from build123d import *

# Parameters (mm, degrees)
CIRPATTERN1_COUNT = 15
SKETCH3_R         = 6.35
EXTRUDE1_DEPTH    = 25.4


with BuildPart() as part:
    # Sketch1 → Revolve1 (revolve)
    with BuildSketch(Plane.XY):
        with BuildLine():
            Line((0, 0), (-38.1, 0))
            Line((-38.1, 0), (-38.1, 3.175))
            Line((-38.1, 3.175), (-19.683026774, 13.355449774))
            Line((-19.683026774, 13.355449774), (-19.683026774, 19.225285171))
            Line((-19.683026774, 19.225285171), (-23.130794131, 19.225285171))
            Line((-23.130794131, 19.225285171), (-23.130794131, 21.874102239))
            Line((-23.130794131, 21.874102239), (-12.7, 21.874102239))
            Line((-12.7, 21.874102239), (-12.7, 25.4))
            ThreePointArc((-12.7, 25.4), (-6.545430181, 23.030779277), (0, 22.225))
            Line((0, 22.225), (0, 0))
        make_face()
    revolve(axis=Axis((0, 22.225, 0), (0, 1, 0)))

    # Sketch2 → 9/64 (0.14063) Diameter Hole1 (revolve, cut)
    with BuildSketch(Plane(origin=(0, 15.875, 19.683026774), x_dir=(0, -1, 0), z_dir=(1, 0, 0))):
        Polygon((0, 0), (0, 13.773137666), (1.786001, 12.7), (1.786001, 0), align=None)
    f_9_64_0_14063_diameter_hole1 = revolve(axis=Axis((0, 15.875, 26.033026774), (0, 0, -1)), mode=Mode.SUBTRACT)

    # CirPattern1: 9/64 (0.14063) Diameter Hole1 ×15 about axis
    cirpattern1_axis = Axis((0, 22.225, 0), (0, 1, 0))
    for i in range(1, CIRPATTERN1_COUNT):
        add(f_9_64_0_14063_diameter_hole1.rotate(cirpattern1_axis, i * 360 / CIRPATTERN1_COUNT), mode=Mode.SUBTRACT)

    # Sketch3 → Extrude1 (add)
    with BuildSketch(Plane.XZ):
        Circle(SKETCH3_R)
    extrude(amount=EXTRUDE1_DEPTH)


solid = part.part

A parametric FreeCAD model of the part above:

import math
import FreeCAD as App
import Part
import Sketcher
from FreeCAD import Vector
Q = App.Units.Quantity


def add_polygon(sketch, points):
    """Adds a closed chain of lines whose ends are joined by coincident constraints."""
    first, n = sketch.GeometryCount, len(points)
    for a, b in zip(points, points[1:] + points[:1]):
        sketch.addGeometry(Part.LineSegment(App.Vector(*a, 0), App.Vector(*b, 0)), False)
    for i in range(n):
        sketch.addConstraint(Sketcher.Constraint("Coincident", first + i, 2, first + (i + 1) % n, 1))

doc = App.newDocument("Part")
body = doc.addObject("PartDesign::Body", "Body")

sketch1 = doc.addObject("Sketcher::SketchObject", "Sketch")
body.addObject(sketch1)
sketch1.AttachmentSupport = (doc.XY_Plane, [""])
sketch1.MapMode = "FlatFace"
sketch1.addGeometry(Part.LineSegment(Vector(-38.1, 0, 0), Vector(0, 0, 0)), False)
sketch1.addGeometry(Part.LineSegment(Vector(0, 0, 0), Vector(0, 22.2, 0)), False)
sketch1.addGeometry(Part.ArcOfCircle(Part.Circle(Vector(0, 49.2, 0), Vector(0, 0, 1), 27), math.radians(-118), math.radians(-90)), False)
sketch1.addGeometry(Part.LineSegment(Vector(-12.7, 25.4, 0), Vector(-12.7, 21.9, 0)), False)
sketch1.addGeometry(Part.LineSegment(Vector(-12.7, 21.9, 0), Vector(-23.1, 21.9, 0)), False)
sketch1.addGeometry(Part.LineSegment(Vector(-23.1, 21.9, 0), Vector(-23.1, 19.2, 0)), False)
sketch1.addGeometry(Part.LineSegment(Vector(-23.1, 19.2, 0), Vector(-19.7, 19.2, 0)), False)
sketch1.addGeometry(Part.LineSegment(Vector(-19.7, 19.2, 0), Vector(-19.7, 13.4, 0)), False)
sketch1.addGeometry(Part.LineSegment(Vector(-19.7, 13.4, 0), Vector(-38.1, 3.2, 0)), False)
sketch1.addGeometry(Part.LineSegment(Vector(-38.1, 3.2, 0), Vector(-38.1, 0, 0)), False)
sketch1.addConstraint(Sketcher.Constraint("Coincident", 0, 2, 1, 1))
sketch1.addConstraint(Sketcher.Constraint("Coincident", 1, 2, 2, 2))
sketch1.addConstraint(Sketcher.Constraint("Coincident", 2, 1, 3, 1))
sketch1.addConstraint(Sketcher.Constraint("Coincident", 3, 2, 4, 1))
sketch1.addConstraint(Sketcher.Constraint("Coincident", 4, 2, 5, 1))
sketch1.addConstraint(Sketcher.Constraint("Coincident", 5, 2, 6, 1))
sketch1.addConstraint(Sketcher.Constraint("Coincident", 6, 2, 7, 1))
sketch1.addConstraint(Sketcher.Constraint("Coincident", 7, 2, 8, 1))
sketch1.addConstraint(Sketcher.Constraint("Coincident", 8, 2, 9, 1))
sketch1.addConstraint(Sketcher.Constraint("Coincident", 9, 2, 0, 1))
sketch1.addConstraint(Sketcher.Constraint("Horizontal", 0))
sketch1.addConstraint(Sketcher.Constraint("Vertical", 1))
sketch1.addConstraint(Sketcher.Constraint("Vertical", 3))
sketch1.addConstraint(Sketcher.Constraint("Horizontal", 4))
sketch1.addConstraint(Sketcher.Constraint("Vertical", 5))
sketch1.addConstraint(Sketcher.Constraint("Horizontal", 6))
sketch1.addConstraint(Sketcher.Constraint("Vertical", 7))
sketch1.addConstraint(Sketcher.Constraint("Vertical", 9))
sketch1.addConstraint(Sketcher.Constraint("Coincident", 0, 2, -1, 1))
sketch1.addConstraint(Sketcher.Constraint("PointOnObject", 2, 3, -2))
sketch1.addConstraint(Sketcher.Constraint("DistanceX", 0, 1, 0, 2, Q("1.5 in")))
sketch1.addConstraint(Sketcher.Constraint("DistanceY", -1, 1, 2, 1, Q("1 in")))
sketch1.addConstraint(Sketcher.Constraint("Radius", 2, Q("1.0625 in")))
sketch1.addConstraint(Sketcher.Constraint("DistanceX", 8, 2, 3, 2, Q("1 in")))
sketch1.addConstraint(Sketcher.Constraint("DistanceY", 9, 2, 9, 1, Q("0.125 in")))
sketch1.addConstraint(Sketcher.Constraint("DistanceX", 4, 2, 4, 1, Q("10.430794 mm")))
sketch1.addConstraint(Sketcher.Constraint("DistanceX", 6, 1, 6, 2, Q("3.447767 mm")))
sketch1.addConstraint(Sketcher.Constraint("DistanceY", 3, 2, 3, 1, Q("3.525898 mm")))
sketch1.addConstraint(Sketcher.Constraint("DistanceY", 5, 2, 5, 1, Q("2.648817 mm")))
sketch1.addConstraint(Sketcher.Constraint("DistanceY", 7, 2, 7, 1, Q("5.869835 mm")))
revolution = doc.addObject("PartDesign::Revolution", "Revolution")
body.addObject(revolution)
revolution.Profile = sketch1
revolution.ReferenceAxis = (sketch1, ["V_Axis"])
revolution.Angle = 360

sketch2 = doc.addObject("Sketcher::SketchObject", "Sketch001")
body.addObject(sketch2)
sketch2.AttachmentSupport = (doc.YZ_Plane, [""])
sketch2.MapMode = "FlatFace"
add_polygon(sketch2, [(15.9, 5.9), (15.9, 19.7), (14.1, 19.7), (14.1, 7)])
sketch2.addGeometry(Part.LineSegment(Vector(15.9, 19.7, 0), Vector(15.9, 5.9, 0)), True)
sketch2.addConstraint(Sketcher.Constraint("Vertical", 0))
sketch2.addConstraint(Sketcher.Constraint("Horizontal", 1))
sketch2.addConstraint(Sketcher.Constraint("Vertical", 2))
sketch2.addConstraint(Sketcher.Constraint("Vertical", 4))
sketch2.addConstraint(Sketcher.Constraint("Coincident", 4, 1, 0, 2))
sketch2.addConstraint(Sketcher.Constraint("Equal", 0, 4))
sketch2.addConstraint(Sketcher.Constraint("DistanceY", 2, 2, 2, 1, Q("0.5 in")))
sketch2.addConstraint(Sketcher.Constraint("Angle", 3, Q("-31 deg")))
sketch2.addConstraint(Sketcher.Constraint("DistanceX", -1, 1, 0, 2, Q("0.625 in")))
sketch2.addConstraint(Sketcher.Constraint("DistanceX", 1, 2, 1, 1, Q("1.786001 mm")))
sketch2.addConstraint(Sketcher.Constraint("DistanceY", -1, 1, 3, 2, Q("5.909889 mm")))
groove = doc.addObject("PartDesign::Groove", "Groove")
body.addObject(groove)
groove.Profile = sketch2
groove.ReferenceAxis = (sketch2, ["Axis0"])
groove.Angle = 360
doc.recompute()

polarpattern = doc.addObject("PartDesign::PolarPattern", "PolarPattern")
body.addObject(polarpattern)
polarpattern.Originals = [groove]
polarpattern.Axis = (doc.Y_Axis, [""])
polarpattern.Angle = 360
polarpattern.Occurrences = 15
body.Tip = polarpattern

sketch3 = doc.addObject("Sketcher::SketchObject", "Sketch002")
body.addObject(sketch3)
sketch3.AttachmentSupport = (doc.XZ_Plane, [""])
sketch3.MapMode = "FlatFace"
sketch3.addGeometry(Part.Circle(Vector(0, 0, 0), Vector(0, 0, 1), 6), False)
sketch3.addConstraint(Sketcher.Constraint("Coincident", 0, 3, -1, 1))
sketch3.addConstraint(Sketcher.Constraint("Diameter", 0, Q("0.5 in")))
pad1 = doc.addObject("PartDesign::Pad", "Pad")
body.addObject(pad1)
pad1.Profile = sketch3
pad1.Length = Q("1 in")

doc.recompute()
